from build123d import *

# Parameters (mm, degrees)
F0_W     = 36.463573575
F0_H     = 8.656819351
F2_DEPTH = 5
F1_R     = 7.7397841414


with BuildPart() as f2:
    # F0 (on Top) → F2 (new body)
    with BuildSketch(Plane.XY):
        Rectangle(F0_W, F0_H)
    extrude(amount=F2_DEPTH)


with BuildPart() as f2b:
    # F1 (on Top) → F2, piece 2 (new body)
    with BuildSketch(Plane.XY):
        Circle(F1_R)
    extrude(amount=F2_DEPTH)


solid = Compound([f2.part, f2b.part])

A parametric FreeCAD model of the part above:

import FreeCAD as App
import Part
import Sketcher

V = App.Vector


def add_polygon(sketch, points):
    """Adds a closed chain of lines whose ends are joined by coincident constraints."""
    first, n = sketch.GeometryCount, len(points)
    for a, b in zip(points, points[1:] + points[:1]):
        sketch.addGeometry(Part.LineSegment(App.Vector(*a, 0), App.Vector(*b, 0)), False)
    for i in range(n):
        sketch.addConstraint(Sketcher.Constraint("Coincident", first + i, 2, first + (i + 1) % n, 1))

doc = App.newDocument("Part")
body = doc.addObject("PartDesign::Body", "Body")

# Sketch on XY plane
sketch1 = doc.addObject("Sketcher::SketchObject", "Sketch")
body.addObject(sketch1)
sketch1.AttachmentSupport = (doc.XY_Plane, [""])
sketch1.MapMode = "FlatFace"
add_polygon(sketch1, [(-18, 4), (-18, -4), (18, -4), (18, 4)])  # lines 0-3
sketch1.addConstraint([
    Sketcher.Constraint("Vertical", 0),
    Sketcher.Constraint("Horizontal", 1),
    Sketcher.Constraint("Vertical", 2),
    Sketcher.Constraint("Horizontal", 3),
    Sketcher.Constraint("Symmetric", 0, 2, 2, 2, -1, 1),
    Sketcher.Constraint("DistanceY", 0, 2, 0, 1, 8.656819),
    Sketcher.Constraint("DistanceX", 1, 1, 1, 2, 36.463574),
])
pad1 = doc.addObject("PartDesign::Pad", "Pad")
body.addObject(pad1)
pad1.Profile = sketch1
pad1.Length = 5
body2 = doc.addObject("PartDesign::Body", "Body001")

# Sketch on XY plane
sketch2 = doc.addObject("Sketcher::SketchObject", "Sketch001")
body2.addObject(sketch2)
sketch2.AttachmentSupport = (doc.getObject("XY_Plane001"), [""])
sketch2.MapMode = "FlatFace"
sketch2.addGeometry(Part.Circle(V(0, 0, 0), V(0, 0, 1), 8), False)
sketch2.addConstraint([
    Sketcher.Constraint("Coincident", 0, 3, -1, 1),
    Sketcher.Constraint("Diameter", 0, 15.479568),
])
pad2 = doc.addObject("PartDesign::Pad", "Pad001")
body2.addObject(pad2)
pad2.Profile = sketch2
pad2.Length = 5

doc.recompute()
